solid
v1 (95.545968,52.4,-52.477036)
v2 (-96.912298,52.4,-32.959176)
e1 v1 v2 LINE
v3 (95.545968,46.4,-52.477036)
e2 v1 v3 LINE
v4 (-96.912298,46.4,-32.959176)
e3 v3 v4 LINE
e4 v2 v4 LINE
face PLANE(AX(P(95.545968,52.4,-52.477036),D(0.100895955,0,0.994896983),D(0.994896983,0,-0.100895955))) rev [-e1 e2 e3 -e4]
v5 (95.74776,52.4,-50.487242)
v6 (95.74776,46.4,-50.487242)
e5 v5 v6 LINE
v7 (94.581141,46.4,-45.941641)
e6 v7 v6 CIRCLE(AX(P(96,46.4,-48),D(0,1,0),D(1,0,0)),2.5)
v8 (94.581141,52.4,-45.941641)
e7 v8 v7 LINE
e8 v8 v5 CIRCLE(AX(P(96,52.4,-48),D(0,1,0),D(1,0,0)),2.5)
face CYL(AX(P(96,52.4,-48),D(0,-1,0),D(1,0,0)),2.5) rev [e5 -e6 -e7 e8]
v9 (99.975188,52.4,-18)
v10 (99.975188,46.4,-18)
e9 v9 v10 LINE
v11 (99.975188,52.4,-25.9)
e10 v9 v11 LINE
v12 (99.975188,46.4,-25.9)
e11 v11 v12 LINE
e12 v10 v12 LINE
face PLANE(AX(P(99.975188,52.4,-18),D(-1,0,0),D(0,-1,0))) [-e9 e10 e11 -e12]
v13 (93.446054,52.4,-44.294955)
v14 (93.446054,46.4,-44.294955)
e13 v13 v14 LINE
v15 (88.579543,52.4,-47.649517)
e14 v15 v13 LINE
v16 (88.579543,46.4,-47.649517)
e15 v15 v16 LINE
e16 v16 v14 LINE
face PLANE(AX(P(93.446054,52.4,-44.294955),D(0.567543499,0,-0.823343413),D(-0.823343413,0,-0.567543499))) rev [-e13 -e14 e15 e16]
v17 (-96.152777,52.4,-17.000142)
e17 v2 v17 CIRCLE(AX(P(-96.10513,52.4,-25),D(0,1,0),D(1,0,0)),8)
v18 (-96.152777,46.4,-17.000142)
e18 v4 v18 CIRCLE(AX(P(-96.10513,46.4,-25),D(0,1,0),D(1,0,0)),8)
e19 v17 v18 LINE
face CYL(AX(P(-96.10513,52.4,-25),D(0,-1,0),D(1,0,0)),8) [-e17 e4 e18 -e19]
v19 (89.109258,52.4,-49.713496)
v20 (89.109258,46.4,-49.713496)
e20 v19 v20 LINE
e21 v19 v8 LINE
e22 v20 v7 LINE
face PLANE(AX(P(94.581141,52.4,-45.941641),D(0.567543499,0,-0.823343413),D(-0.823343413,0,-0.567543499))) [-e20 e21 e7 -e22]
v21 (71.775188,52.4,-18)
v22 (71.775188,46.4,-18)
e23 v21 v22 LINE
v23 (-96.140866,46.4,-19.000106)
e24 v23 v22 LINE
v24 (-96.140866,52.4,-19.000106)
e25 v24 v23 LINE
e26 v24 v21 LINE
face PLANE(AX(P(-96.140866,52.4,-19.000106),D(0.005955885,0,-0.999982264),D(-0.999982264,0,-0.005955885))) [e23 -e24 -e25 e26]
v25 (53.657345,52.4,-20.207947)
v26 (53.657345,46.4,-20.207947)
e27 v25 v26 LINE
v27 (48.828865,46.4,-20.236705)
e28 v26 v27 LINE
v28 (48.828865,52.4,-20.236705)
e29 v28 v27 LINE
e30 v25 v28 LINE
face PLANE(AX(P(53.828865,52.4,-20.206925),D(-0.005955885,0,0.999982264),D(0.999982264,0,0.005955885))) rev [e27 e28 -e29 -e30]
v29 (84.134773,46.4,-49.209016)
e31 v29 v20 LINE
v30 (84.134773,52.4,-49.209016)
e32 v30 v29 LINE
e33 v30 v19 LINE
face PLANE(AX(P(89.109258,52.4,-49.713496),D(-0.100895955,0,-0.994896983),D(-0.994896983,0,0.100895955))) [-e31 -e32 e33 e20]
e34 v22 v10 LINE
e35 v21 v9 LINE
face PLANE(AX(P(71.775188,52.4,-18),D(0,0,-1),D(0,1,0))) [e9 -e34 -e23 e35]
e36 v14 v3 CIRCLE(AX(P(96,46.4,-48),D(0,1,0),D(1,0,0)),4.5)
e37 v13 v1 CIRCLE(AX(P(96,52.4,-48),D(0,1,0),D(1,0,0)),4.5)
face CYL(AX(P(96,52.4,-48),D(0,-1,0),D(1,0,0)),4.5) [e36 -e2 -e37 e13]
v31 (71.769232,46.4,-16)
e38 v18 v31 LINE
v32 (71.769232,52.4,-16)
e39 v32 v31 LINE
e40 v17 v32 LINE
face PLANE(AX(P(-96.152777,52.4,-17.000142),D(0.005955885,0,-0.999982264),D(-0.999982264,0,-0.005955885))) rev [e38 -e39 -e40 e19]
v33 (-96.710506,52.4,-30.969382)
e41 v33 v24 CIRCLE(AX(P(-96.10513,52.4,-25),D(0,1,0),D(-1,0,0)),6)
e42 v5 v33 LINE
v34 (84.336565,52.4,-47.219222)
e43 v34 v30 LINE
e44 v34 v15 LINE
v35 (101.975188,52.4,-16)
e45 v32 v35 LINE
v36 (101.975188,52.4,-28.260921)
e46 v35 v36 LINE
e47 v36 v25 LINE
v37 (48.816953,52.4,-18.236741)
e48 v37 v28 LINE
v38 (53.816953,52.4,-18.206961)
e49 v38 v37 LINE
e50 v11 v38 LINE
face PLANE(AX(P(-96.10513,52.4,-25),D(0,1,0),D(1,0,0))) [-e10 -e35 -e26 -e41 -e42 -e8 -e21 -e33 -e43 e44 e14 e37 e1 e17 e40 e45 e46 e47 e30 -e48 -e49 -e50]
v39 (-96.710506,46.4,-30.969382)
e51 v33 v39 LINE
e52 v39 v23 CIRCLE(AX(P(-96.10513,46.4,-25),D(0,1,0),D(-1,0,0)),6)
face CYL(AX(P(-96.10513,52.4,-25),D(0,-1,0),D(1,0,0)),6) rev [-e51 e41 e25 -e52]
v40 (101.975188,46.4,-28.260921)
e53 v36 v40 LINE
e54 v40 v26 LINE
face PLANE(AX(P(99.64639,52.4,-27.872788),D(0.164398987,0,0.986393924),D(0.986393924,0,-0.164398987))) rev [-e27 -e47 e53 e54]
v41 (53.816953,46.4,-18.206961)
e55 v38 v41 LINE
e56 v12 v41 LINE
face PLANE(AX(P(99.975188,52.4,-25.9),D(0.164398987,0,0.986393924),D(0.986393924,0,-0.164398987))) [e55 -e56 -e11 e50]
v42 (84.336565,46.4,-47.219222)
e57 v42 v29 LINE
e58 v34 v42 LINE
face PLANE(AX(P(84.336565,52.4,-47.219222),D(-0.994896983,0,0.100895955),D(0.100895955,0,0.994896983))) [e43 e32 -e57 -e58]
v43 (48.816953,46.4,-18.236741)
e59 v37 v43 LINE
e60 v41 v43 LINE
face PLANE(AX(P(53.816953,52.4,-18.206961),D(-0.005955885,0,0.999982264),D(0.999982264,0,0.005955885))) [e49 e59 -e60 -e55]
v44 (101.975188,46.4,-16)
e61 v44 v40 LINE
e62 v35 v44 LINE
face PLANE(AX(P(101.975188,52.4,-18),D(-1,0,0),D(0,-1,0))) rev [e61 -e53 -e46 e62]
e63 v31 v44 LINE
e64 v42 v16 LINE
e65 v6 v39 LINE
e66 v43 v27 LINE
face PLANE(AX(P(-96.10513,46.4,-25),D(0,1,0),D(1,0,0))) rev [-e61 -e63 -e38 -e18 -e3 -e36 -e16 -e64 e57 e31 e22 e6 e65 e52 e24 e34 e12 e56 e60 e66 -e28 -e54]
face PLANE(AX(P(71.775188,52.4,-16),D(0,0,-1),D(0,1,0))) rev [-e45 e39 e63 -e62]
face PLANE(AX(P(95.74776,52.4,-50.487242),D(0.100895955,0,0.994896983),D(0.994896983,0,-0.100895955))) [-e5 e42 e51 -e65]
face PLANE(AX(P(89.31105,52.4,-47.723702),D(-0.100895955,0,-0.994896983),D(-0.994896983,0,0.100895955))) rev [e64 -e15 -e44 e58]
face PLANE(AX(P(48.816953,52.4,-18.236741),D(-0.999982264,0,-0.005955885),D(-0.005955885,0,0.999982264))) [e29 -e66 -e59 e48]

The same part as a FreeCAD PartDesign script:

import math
import FreeCAD as App
import Part
import Sketcher
Q = App.Units.Quantity

doc = App.newDocument("Part")
body = doc.addObject("PartDesign::Body", "Body")

sketch1 = body.newObject("Sketcher::SketchObject", "Sketch")
sketch1.AttachmentSupport = (doc.getObject("XZ_Plane"), [""])
sketch1.MapMode = "FlatFace"
sketch1.AttachmentOffset = App.Placement(App.Vector(0, 0, -49.4), App.Rotation())
sketch1.addGeometry(Part.LineSegment(App.Vector(89.1, -49.7, 0), App.Vector(84.1, -49.2, 0)), False)
sketch1.addGeometry(Part.LineSegment(App.Vector(84.1, -49.2, 0), App.Vector(84.3, -47.2, 0)), False)
sketch1.addGeometry(Part.LineSegment(App.Vector(84.3, -47.2, 0), App.Vector(88.6, -47.6, 0)), False)
sketch1.addGeometry(Part.LineSegment(App.Vector(88.6, -47.6, 0), App.Vector(93.4, -44.3, 0)), False)
sketch1.addGeometry(Part.ArcOfCircle(Part.Circle(App.Vector(96, -48, 0), App.Vector(0, 0, 1), 4.5), math.radians(-96), math.radians(125)), False)
sketch1.addGeometry(Part.LineSegment(App.Vector(95.5, -52.5, 0), App.Vector(-96.9, -33, 0)), False)
sketch1.addGeometry(Part.ArcOfCircle(Part.Circle(App.Vector(-96.1, -25, 0), App.Vector(0, 0, 1), 8), math.radians(90), math.radians(264)), False)
sketch1.addGeometry(Part.LineSegment(App.Vector(-96.2, -17, 0), App.Vector(71.8, -16, 0)), False)
sketch1.addGeometry(Part.LineSegment(App.Vector(71.8, -16, 0), App.Vector(102, -16, 0)), False)
sketch1.addGeometry(Part.LineSegment(App.Vector(102, -16, 0), App.Vector(102, -28.3, 0)), False)
sketch1.addGeometry(Part.LineSegment(App.Vector(102, -28.3, 0), App.Vector(53.7, -20.2, 0)), False)
sketch1.addGeometry(Part.LineSegment(App.Vector(53.7, -20.2, 0), App.Vector(48.8, -20.2, 0)), False)
sketch1.addGeometry(Part.LineSegment(App.Vector(48.8, -20.2, 0), App.Vector(48.8, -18.2, 0)), False)
sketch1.addGeometry(Part.LineSegment(App.Vector(48.8, -18.2, 0), App.Vector(53.8, -18.2, 0)), False)
sketch1.addGeometry(Part.LineSegment(App.Vector(53.8, -18.2, 0), App.Vector(100, -25.9, 0)), False)
sketch1.addGeometry(Part.LineSegment(App.Vector(100, -25.9, 0), App.Vector(100, -18, 0)), False)
sketch1.addGeometry(Part.LineSegment(App.Vector(100, -18, 0), App.Vector(71.8, -18, 0)), False)
sketch1.addGeometry(Part.LineSegment(App.Vector(71.8, -18, 0), App.Vector(-96.1, -19, 0)), False)
sketch1.addGeometry(Part.ArcOfCircle(Part.Circle(App.Vector(-96.1, -25, 0), App.Vector(0, 0, 1), 6), math.radians(90), math.radians(264)), False)
sketch1.addGeometry(Part.LineSegment(App.Vector(-96.7, -31, 0), App.Vector(95.7, -50.5, 0)), False)
sketch1.addGeometry(Part.ArcOfCircle(Part.Circle(App.Vector(96, -48, 0), App.Vector(0, 0, 1), 2.5), math.radians(-96), math.radians(125)), False)
sketch1.addGeometry(Part.LineSegment(App.Vector(94.6, -45.9, 0), App.Vector(89.1, -49.7, 0)), False)
sketch1.addConstraint(Sketcher.Constraint("Coincident", 0, 2, 1, 1))
sketch1.addConstraint(Sketcher.Constraint("Coincident", 1, 2, 2, 1))
sketch1.addConstraint(Sketcher.Constraint("Coincident", 2, 2, 3, 1))
sketch1.addConstraint(Sketcher.Constraint("Tangent", 3, 2, 4, 2))
sketch1.addConstraint(Sketcher.Constraint("Tangent", 4, 1, 5, 1))
sketch1.addConstraint(Sketcher.Constraint("Tangent", 5, 2, 6, 2))
sketch1.addConstraint(Sketcher.Constraint("Tangent", 6, 1, 7, 1))
sketch1.addConstraint(Sketcher.Constraint("Coincident", 7, 2, 8, 1))
sketch1.addConstraint(Sketcher.Constraint("Coincident", 8, 2, 9, 1))
sketch1.addConstraint(Sketcher.Constraint("Coincident", 9, 2, 10, 1))
sketch1.addConstraint(Sketcher.Constraint("Coincident", 10, 2, 11, 1))
sketch1.addConstraint(Sketcher.Constraint("Coincident", 11, 2, 12, 1))
sketch1.addConstraint(Sketcher.Constraint("Coincident", 12, 2, 13, 1))
sketch1.addConstraint(Sketcher.Constraint("Coincident", 13, 2, 14, 1))
sketch1.addConstraint(Sketcher.Constraint("Coincident", 14, 2, 15, 1))
sketch1.addConstraint(Sketcher.Constraint("Coincident", 15, 2, 16, 1))
sketch1.addConstraint(Sketcher.Constraint("Coincident", 16, 2, 17, 1))
sketch1.addConstraint(Sketcher.Constraint("Tangent", 17, 2, 18, 1))
sketch1.addConstraint(Sketcher.Constraint("Tangent", 18, 2, 19, 1))
sketch1.addConstraint(Sketcher.Constraint("Tangent", 19, 2, 20, 1))
sketch1.addConstraint(Sketcher.Constraint("Tangent", 20, 2, 21, 1))
sketch1.addConstraint(Sketcher.Constraint("Coincident", 21, 2, 0, 1))
sketch1.addConstraint(Sketcher.Constraint("Horizontal", 8))
sketch1.addConstraint(Sketcher.Constraint("Vertical", 9))
sketch1.addConstraint(Sketcher.Constraint("Vertical", 15))
sketch1.addConstraint(Sketcher.Constraint("Horizontal", 16))
sketch1.addConstraint(Sketcher.Constraint("Coincident", 18, 3, 6, 3))
sketch1.addConstraint(Sketcher.Constraint("Coincident", 20, 3, 4, 3))
sketch1.addConstraint(Sketcher.Constraint("Perpendicular", 0, 1))
sketch1.addConstraint(Sketcher.Constraint("Perpendicular", 1, 2))
sketch1.addConstraint(Sketcher.Constraint("Parallel", 2, 5))
sketch1.addConstraint(Sketcher.Constraint("Parallel", 7, 11))
sketch1.addConstraint(Sketcher.Constraint("Perpendicular", 11, 12))
sketch1.addConstraint(Sketcher.Constraint("Perpendicular", 12, 13))
sketch1.addConstraint(Sketcher.Constraint("Parallel", 10, 14))
sketch1.addConstraint(Sketcher.Constraint("Parallel", 13, 17))
sketch1.addConstraint(Sketcher.Constraint("Parallel", 5, 19))
sketch1.addConstraint(Sketcher.Constraint("Parallel", 3, 21))
sketch1.addConstraint(Sketcher.Constraint("Equal", 1, 12))
sketch1.addConstraint(Sketcher.Constraint("Radius", 6, Q("8 mm")))
sketch1.addConstraint(Sketcher.Constraint("Radius", 18, Q("6 mm")))
sketch1.addConstraint(Sketcher.Constraint("Radius", 4, Q("4.5 mm")))
sketch1.addConstraint(Sketcher.Constraint("Distance", 0, Q("5 mm")))
sketch1.addConstraint(Sketcher.Constraint("Distance", 1, Q("2 mm")))
sketch1.addConstraint(Sketcher.Constraint("DistanceX", 16, 2, 16, 1, Q("28.2 mm")))
sketch1.addConstraint(Sketcher.Constraint("DistanceY", 15, 1, 15, 2, Q("7.9 mm")))
sketch1.addConstraint(Sketcher.Constraint("DistanceX", -1, 1, 4, 3, Q("96 mm")))
sketch1.addConstraint(Sketcher.Constraint("DistanceY", 4, 3, -1, 1, Q("48 mm")))
sketch1.addConstraint(Sketcher.Constraint("DistanceY", 6, 3, -1, 1, Q("25 mm")))
sketch1.addConstraint(Sketcher.Constraint("DistanceY", 7, 2, -1, 1, Q("16 mm")))
sketch1.addConstraint(Sketcher.Constraint("DistanceY", 15, 2, -1, 1, Q("18 mm")))
sketch1.addConstraint(Sketcher.Constraint("DistanceX", 12, 2, 13, 2, Q("5 mm")))
sketch1.addConstraint(Sketcher.Constraint("DistanceX", 14, 2, 9, 2, Q("2 mm")))
sketch1.addConstraint(Sketcher.Constraint("DistanceY", 9, 2, 9, 1, Q("12.260921 mm")))
sketch1.addConstraint(Sketcher.Constraint("DistanceX", 5, 2, -1, 1, Q("96.912298 mm")))
sketch1.addConstraint(Sketcher.Constraint("DistanceY", 0, 2, 2, 2, Q("1.559499 mm")))
sketch1.addConstraint(Sketcher.Constraint("DistanceX", 11, 2, 1, 2, Q("35.5077 mm")))
sketch1.addConstraint(Sketcher.Constraint("DistanceX", 2, 2, 20, 2, Q("6.001599 mm")))
sketch1.addConstraint(Sketcher.Constraint("Distance", 7, Q("167.924988 mm")))
sketch1.addConstraint(Sketcher.Constraint("Distance", 14, Q("46.79493 mm")))
pad1 = body.newObject("PartDesign::Pad", "Pad")
pad1.Profile = sketch1
pad1.Length = 6
pad1.Midplane = True

doc.recompute()
